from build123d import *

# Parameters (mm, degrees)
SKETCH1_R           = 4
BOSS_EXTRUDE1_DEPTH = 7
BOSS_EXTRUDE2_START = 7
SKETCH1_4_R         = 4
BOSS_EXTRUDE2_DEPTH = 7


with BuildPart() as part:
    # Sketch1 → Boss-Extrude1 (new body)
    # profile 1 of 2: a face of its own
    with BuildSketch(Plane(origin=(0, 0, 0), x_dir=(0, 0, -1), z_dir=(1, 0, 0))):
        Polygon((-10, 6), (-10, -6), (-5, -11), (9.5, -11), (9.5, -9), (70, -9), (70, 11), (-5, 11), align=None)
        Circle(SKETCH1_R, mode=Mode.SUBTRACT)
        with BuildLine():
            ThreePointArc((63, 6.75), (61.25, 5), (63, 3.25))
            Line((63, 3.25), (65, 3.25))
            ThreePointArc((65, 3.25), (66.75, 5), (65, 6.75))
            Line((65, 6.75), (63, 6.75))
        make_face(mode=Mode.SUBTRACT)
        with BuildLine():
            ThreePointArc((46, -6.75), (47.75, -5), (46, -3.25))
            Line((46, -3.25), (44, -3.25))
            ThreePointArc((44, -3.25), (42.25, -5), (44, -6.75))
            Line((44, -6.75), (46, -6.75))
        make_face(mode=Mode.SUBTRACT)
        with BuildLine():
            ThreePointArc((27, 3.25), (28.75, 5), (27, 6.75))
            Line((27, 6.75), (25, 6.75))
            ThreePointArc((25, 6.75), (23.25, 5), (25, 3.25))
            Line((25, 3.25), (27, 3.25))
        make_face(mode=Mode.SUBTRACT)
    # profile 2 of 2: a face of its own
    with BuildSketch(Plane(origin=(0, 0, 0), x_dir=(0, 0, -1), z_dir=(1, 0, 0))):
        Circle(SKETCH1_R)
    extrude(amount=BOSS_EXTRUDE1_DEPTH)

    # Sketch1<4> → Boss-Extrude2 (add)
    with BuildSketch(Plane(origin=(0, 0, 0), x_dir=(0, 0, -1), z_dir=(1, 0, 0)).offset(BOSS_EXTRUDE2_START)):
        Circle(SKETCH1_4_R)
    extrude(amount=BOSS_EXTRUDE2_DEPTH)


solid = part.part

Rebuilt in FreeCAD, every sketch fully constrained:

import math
import FreeCAD as App
import Part
import Sketcher

doc = App.newDocument("Part")
body = doc.addObject("PartDesign::Body", "Body")

sketch1 = body.newObject("Sketcher::SketchObject", "Sketch")
sketch1.AttachmentSupport = (doc.getObject("YZ_Plane"), [""])
sketch1.MapMode = "FlatFace"
sketch1.addGeometry([
    Part.LineSegment(App.Vector(6, 10, 0), App.Vector(-6, 10, 0)),
    Part.LineSegment(App.Vector(-6, 10, 0), App.Vector(-11, 5, 0)),
    Part.LineSegment(App.Vector(-11, 5, 0), App.Vector(-11, -9.5, 0)),
    Part.LineSegment(App.Vector(-11, -9.5, 0), App.Vector(-9, -9.5, 0)),
    Part.LineSegment(App.Vector(-9, -9.5, 0), App.Vector(-9, -70, 0)),
    Part.LineSegment(App.Vector(-9, -70, 0), App.Vector(11, -70, 0)),
    Part.LineSegment(App.Vector(11, -70, 0), App.Vector(11, 5, 0)),
    Part.LineSegment(App.Vector(11, 5, 0), App.Vector(6, 10, 0)),
    Part.ArcOfCircle(Part.Circle(App.Vector(-5, -46, 0), App.Vector(0, 0, 1), 1.75), math.radians(180), math.radians(360)),
    Part.LineSegment(App.Vector(-6.75, -46, 0), App.Vector(-6.75, -44, 0)),
    Part.ArcOfCircle(Part.Circle(App.Vector(-5, -44, 0), App.Vector(0, 0, 1), 1.75), math.radians(0), math.radians(180)),
    Part.LineSegment(App.Vector(-3.25, -44, 0), App.Vector(-3.25, -46, 0)),
    Part.ArcOfCircle(Part.Circle(App.Vector(5, -27, 0), App.Vector(0, 0, 1), 1.75), math.radians(180), math.radians(360)),
    Part.LineSegment(App.Vector(3.25, -27, 0), App.Vector(3.25, -25, 0)),
    Part.ArcOfCircle(Part.Circle(App.Vector(5, -25, 0), App.Vector(0, 0, 1), 1.75), math.radians(0), math.radians(180)),
    Part.LineSegment(App.Vector(6.75, -25, 0), App.Vector(6.75, -27, 0)),
    Part.ArcOfCircle(Part.Circle(App.Vector(5, -63, 0), App.Vector(0, 0, 1), 1.75), math.radians(0), math.radians(180)),
    Part.LineSegment(App.Vector(6.75, -63, 0), App.Vector(6.75, -65, 0)),
    Part.ArcOfCircle(Part.Circle(App.Vector(5, -65, 0), App.Vector(0, 0, 1), 1.75), math.radians(180), math.radians(360)),
    Part.LineSegment(App.Vector(3.25, -65, 0), App.Vector(3.25, -63, 0)),
], False)
sketch1.addConstraint([
    Sketcher.Constraint("Coincident", 0, 2, 1, 1),
    Sketcher.Constraint("Coincident", 1, 2, 2, 1),
    Sketcher.Constraint("Coincident", 2, 2, 3, 1),
    Sketcher.Constraint("Coincident", 3, 2, 4, 1),
    Sketcher.Constraint("Coincident", 4, 2, 5, 1),
    Sketcher.Constraint("Coincident", 5, 2, 6, 1),
    Sketcher.Constraint("Coincident", 6, 2, 7, 1),
    Sketcher.Constraint("Coincident", 7, 2, 0, 1),
    Sketcher.Constraint("Tangent", 8, 1, 9, 1),
    Sketcher.Constraint("Tangent", 9, 2, 10, 2),
    Sketcher.Constraint("Tangent", 10, 1, 11, 1),
    Sketcher.Constraint("Tangent", 11, 2, 8, 2),
    Sketcher.Constraint("Tangent", 12, 1, 13, 1),
    Sketcher.Constraint("Tangent", 13, 2, 14, 2),
    Sketcher.Constraint("Tangent", 14, 1, 15, 1),
    Sketcher.Constraint("Tangent", 15, 2, 12, 2),
    Sketcher.Constraint("Tangent", 16, 1, 17, 1),
    Sketcher.Constraint("Tangent", 17, 2, 18, 2),
    Sketcher.Constraint("Tangent", 18, 1, 19, 1),
    Sketcher.Constraint("Tangent", 19, 2, 16, 2),
    Sketcher.Constraint("Horizontal", 0),
    Sketcher.Constraint("Vertical", 2),
    Sketcher.Constraint("Horizontal", 3),
    Sketcher.Constraint("Vertical", 4),
    Sketcher.Constraint("Horizontal", 5),
    Sketcher.Constraint("Vertical", 6),
    Sketcher.Constraint("Vertical", 9),
    Sketcher.Constraint("Vertical", 11),
    Sketcher.Constraint("Vertical", 13),
    Sketcher.Constraint("Vertical", 15),
    Sketcher.Constraint("Vertical", 17),
    Sketcher.Constraint("Vertical", 19),
    Sketcher.Constraint("Equal", 10, 12),
    Sketcher.Constraint("Equal", 14, 16),
    Sketcher.Constraint("Symmetric", 1, 2, 6, 2, -2),
    Sketcher.Constraint("Perpendicular", 1, 7),
    Sketcher.Constraint("Vertical", 14, 3, 16, 3),
    Sketcher.Constraint("Equal", 3, 9),
    Sketcher.Constraint("Equal", 11, 13),
    Sketcher.Constraint("Equal", 15, 17),
    Sketcher.Constraint("Equal", 1, 7),
    Sketcher.Constraint("DistanceX", 0, 2, 0, 1, 12.0),
    Sketcher.Constraint("DistanceX", 3, 1, 3, 2, 2.0),
    Sketcher.Constraint("DistanceX", 5, 1, 5, 2, 20.0),
    Sketcher.Constraint("DistanceY", 6, 1, 6, 2, 75.0),
    Sketcher.Constraint("Radius", 8, 1.75),
    Sketcher.Constraint("DistanceY", 2, 2, 2, 1, 14.5),
    Sketcher.Constraint("DistanceX", 8, 3, -1, 1, 5.0),
    Sketcher.Constraint("DistanceY", 8, 3, -1, 1, 46.0),
    Sketcher.Constraint("DistanceX", -1, 1, 12, 3, 5.0),
    Sketcher.Constraint("DistanceY", 12, 3, -1, 1, 27.0),
    Sketcher.Constraint("DistanceY", 16, 3, -1, 1, 63.0),
    Sketcher.Constraint("DistanceY", -1, 1, 0, 2, 10.0),
])
pad1 = body.newObject("PartDesign::Pad", "Pad")
pad1.Profile = sketch1
pad1.Length = 7

sketch2 = body.newObject("Sketcher::SketchObject", "Sketch001")
sketch2.AttachmentSupport = (doc.getObject("YZ_Plane"), [""])
sketch2.MapMode = "FlatFace"
sketch2.AttachmentOffset = App.Placement(App.Vector(0, 0, 7), App.Rotation())
sketch2.addGeometry(Part.Circle(App.Vector(0, 0, 0), App.Vector(0, 0, 1), 4), False)
sketch2.addConstraint([
    Sketcher.Constraint("Coincident", 0, 3, -1, 1),
    Sketcher.Constraint("Diameter", 0, 8.0),
])
pad2 = body.newObject("PartDesign::Pad", "Pad001")
pad2.Profile = sketch2
pad2.Length = 7

doc.recompute()
